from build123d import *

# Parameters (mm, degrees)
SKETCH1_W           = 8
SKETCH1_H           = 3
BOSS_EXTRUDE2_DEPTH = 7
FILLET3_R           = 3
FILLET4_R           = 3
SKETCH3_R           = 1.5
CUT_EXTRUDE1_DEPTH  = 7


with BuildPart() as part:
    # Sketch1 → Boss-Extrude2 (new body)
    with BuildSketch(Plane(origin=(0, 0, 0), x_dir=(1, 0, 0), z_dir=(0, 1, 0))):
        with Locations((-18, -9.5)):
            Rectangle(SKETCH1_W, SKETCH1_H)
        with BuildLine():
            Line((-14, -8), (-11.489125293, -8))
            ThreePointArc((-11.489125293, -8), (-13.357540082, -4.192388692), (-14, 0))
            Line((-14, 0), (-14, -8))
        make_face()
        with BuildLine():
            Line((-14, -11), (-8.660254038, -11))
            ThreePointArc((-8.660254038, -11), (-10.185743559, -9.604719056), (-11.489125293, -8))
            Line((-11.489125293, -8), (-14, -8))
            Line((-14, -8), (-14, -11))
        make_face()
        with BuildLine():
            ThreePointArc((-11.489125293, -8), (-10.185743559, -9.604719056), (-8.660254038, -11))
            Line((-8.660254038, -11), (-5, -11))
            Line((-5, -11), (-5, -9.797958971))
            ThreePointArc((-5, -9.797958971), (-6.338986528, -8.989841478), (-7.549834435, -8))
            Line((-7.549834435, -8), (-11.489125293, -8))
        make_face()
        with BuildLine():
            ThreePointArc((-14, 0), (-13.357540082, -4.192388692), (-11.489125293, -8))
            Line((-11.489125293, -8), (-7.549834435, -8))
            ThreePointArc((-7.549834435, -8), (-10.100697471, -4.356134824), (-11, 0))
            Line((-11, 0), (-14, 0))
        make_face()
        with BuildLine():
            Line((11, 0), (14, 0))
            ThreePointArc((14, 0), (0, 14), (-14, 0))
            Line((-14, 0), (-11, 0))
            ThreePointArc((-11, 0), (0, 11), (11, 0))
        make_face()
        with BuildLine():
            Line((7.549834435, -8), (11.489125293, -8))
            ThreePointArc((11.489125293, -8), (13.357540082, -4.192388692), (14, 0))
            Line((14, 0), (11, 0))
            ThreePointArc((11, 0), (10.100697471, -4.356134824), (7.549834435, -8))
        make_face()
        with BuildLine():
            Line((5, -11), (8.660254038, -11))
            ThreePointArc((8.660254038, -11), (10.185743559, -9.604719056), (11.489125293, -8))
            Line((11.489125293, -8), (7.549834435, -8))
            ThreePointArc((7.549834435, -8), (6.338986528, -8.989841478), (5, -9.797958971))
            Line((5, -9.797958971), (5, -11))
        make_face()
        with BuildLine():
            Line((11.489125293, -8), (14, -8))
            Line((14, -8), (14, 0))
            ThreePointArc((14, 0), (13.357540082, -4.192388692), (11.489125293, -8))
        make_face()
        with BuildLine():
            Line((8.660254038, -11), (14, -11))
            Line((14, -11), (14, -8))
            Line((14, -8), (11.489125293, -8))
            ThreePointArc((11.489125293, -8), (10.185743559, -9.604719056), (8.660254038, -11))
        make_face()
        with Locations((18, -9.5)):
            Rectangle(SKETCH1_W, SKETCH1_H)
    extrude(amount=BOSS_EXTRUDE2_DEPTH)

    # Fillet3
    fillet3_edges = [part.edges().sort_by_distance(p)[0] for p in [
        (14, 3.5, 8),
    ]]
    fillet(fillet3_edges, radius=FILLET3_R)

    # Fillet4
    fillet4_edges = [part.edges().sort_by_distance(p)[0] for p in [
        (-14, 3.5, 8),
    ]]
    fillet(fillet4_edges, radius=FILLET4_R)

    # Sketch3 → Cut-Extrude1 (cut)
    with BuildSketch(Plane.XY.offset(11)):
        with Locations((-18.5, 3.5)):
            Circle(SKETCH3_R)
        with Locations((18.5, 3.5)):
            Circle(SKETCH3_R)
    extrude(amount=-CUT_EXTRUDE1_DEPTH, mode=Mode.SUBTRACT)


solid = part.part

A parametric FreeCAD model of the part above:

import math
import FreeCAD as App
import Part
import Sketcher

V = App.Vector
Q = App.Units.Quantity


def edges_at(feature, points):
    """Names of the edges that pass closest to the given points."""
    edges = feature.Shape.Edges
    near = lambda p: min(range(len(edges)), key=lambda i: edges[i].distToShape(Part.Vertex(*p))[0])
    return sorted({f"Edge{near(p) + 1}" for p in points})

doc = App.newDocument("Part")
body = doc.addObject("PartDesign::Body", "Body")

# Sketch on XZ plane
sketch1 = body.newObject("Sketcher::SketchObject", "Sketch")
sketch1.AttachmentSupport = (doc.getObject("XZ_Plane"), [""])
sketch1.MapMode = "FlatFace"
sketch1.addGeometry([
    Part.LineSegment(V(-22, 8, 0), V(-22, 11, 0)),  # 0
    Part.LineSegment(V(-22, 11, 0), V(-5, 11, 0)),  # 1
    Part.LineSegment(V(-5, 11, 0), V(-5, 9.8, 0)),  # 2
    Part.ArcOfCircle(Part.Circle(V(0, 0, 0), V(0, 0, 1), 11), math.radians(117.04), math.radians(133.34)),  # 3
    Part.ArcOfCircle(Part.Circle(V(0, 0, 0), V(0, 0, 1), 11), math.radians(133), math.radians(180)),  # 4
    Part.ArcOfCircle(Part.Circle(V(0, 0, 0), V(0, 0, 1), 11), math.radians(180), math.radians(360)),  # 5
    Part.ArcOfCircle(Part.Circle(V(0, 0, 0), V(0, 0, 1), 11), math.radians(0), math.radians(47)),  # 6
    Part.ArcOfCircle(Part.Circle(V(0, 0, 0), V(0, 0, 1), 11), math.radians(46.66), math.radians(62.96)),  # 7
    Part.LineSegment(V(5, 9.8, 0), V(5, 11, 0)),  # 8
    Part.LineSegment(V(5, 11, 0), V(22, 11, 0)),  # 9
    Part.LineSegment(V(22, 11, 0), V(22, 8, 0)),  # 10
    Part.LineSegment(V(22, 8, 0), V(14, 8, 0)),  # 11
    Part.LineSegment(V(14, 8, 0), V(14, 0, 0)),  # 12
    Part.ArcOfCircle(Part.Circle(V(0, 0, 0), V(0, 0, 1), 14), math.radians(180), math.radians(360)),  # 13
    Part.LineSegment(V(-14, 0, 0), V(-14, 8, 0)),  # 14
    Part.LineSegment(V(-14, 8, 0), V(-22, 8, 0)),  # 15
], False)
sketch1.addConstraint([
    Sketcher.Constraint("Coincident", 0, 2, 1, 1),
    Sketcher.Constraint("Coincident", 1, 2, 2, 1),
    Sketcher.Constraint("Coincident", 2, 2, 3, 1),
    Sketcher.Constraint("Tangent", 3, 2, 4, 1),
    Sketcher.Constraint("Tangent", 4, 2, 5, 1),
    Sketcher.Constraint("Tangent", 5, 2, 6, 1),
    Sketcher.Constraint("Tangent", 6, 2, 7, 1),
    Sketcher.Constraint("Coincident", 7, 2, 8, 1),
    Sketcher.Constraint("Coincident", 8, 2, 9, 1),
    Sketcher.Constraint("Coincident", 9, 2, 10, 1),
    Sketcher.Constraint("Coincident", 10, 2, 11, 1),
    Sketcher.Constraint("Coincident", 11, 2, 12, 1),
    Sketcher.Constraint("Tangent", 12, 2, 13, 2),
    Sketcher.Constraint("Tangent", 13, 1, 14, 1),
    Sketcher.Constraint("Coincident", 14, 2, 15, 1),
    Sketcher.Constraint("Coincident", 15, 2, 0, 1),
    Sketcher.Constraint("Vertical", 0),
    Sketcher.Constraint("Horizontal", 1),
    Sketcher.Constraint("Vertical", 2),
    Sketcher.Constraint("Vertical", 8),
    Sketcher.Constraint("Horizontal", 9),
    Sketcher.Constraint("Vertical", 10),
    Sketcher.Constraint("Horizontal", 11),
    Sketcher.Constraint("Vertical", 12),
    Sketcher.Constraint("Vertical", 14),
    Sketcher.Constraint("Horizontal", 15),
    Sketcher.Constraint("Coincident", 3, 3, -1, 1),
    Sketcher.Constraint("Coincident", 5, 3, -1, 1),
    Sketcher.Constraint("Coincident", 7, 3, -1, 1),
    Sketcher.Constraint("Coincident", 13, 3, -1, 1),
    Sketcher.Constraint("Symmetric", 1, 2, 8, 2, -2),
    Sketcher.Constraint("Symmetric", 10, 2, 15, 2, -2),
    Sketcher.Constraint("PointOnObject", 4, 2, -1),
    Sketcher.Constraint("PointOnObject", 5, 2, -1),
    Sketcher.Constraint("Horizontal", 3, 2, 6, 2),
    Sketcher.Constraint("Horizontal", 6, 2, 10, 2),
    Sketcher.Constraint("Equal", 15, 12),
    Sketcher.Constraint("Radius", 3, Q("11 mm")),
    Sketcher.Constraint("Radius", 13, Q("14 mm")),
    Sketcher.Constraint("DistanceX", 1, 1, 1, 2, Q("17 mm")),
    Sketcher.Constraint("DistanceX", 11, 2, 11, 1, Q("8 mm")),
    Sketcher.Constraint("DistanceY", 0, 1, 0, 2, Q("3 mm")),
])
pad1 = body.newObject("PartDesign::Pad", "Pad")
pad1.Profile = sketch1
pad1.Length = 7
pad1.Reversed = True
doc.recompute()

fillet = body.newObject("PartDesign::Fillet", "Fillet")
fillet.Base = (pad1, edges_at(pad1, [(14, 3.5, 8)]))
fillet.Radius = 3
doc.recompute()

fillet2 = body.newObject("PartDesign::Fillet", "Fillet001")
fillet2.Base = (fillet, edges_at(fillet, [(-14, 3.5, 8)]))
fillet2.Radius = 3

# Sketch on XY plane
sketch2 = body.newObject("Sketcher::SketchObject", "Sketch001")
sketch2.AttachmentSupport = (doc.getObject("XY_Plane"), [""])
sketch2.MapMode = "FlatFace"
sketch2.AttachmentOffset = App.Placement(V(0, 0, 11), App.Rotation())
sketch2.addGeometry([
    Part.Circle(V(-18.5, 3.5, 0), V(0, 0, 1), 1.5),
    Part.Circle(V(18.5, 3.5, 0), V(0, 0, 1), 1.5),
], False)
sketch2.addConstraint([
    Sketcher.Constraint("Equal", 0, 1),
    Sketcher.Constraint("Symmetric", 0, 3, 1, 3, -2),
    Sketcher.Constraint("Diameter", 0, Q("3 mm")),
    Sketcher.Constraint("DistanceX", 0, 3, 1, 3, Q("37 mm")),
    Sketcher.Constraint("DistanceY", -1, 1, 0, 3, Q("3.5 mm")),
])
pocket1 = body.newObject("PartDesign::Pocket", "Pocket")
pocket1.Profile = sketch2
pocket1.Length = 7

doc.recompute()
